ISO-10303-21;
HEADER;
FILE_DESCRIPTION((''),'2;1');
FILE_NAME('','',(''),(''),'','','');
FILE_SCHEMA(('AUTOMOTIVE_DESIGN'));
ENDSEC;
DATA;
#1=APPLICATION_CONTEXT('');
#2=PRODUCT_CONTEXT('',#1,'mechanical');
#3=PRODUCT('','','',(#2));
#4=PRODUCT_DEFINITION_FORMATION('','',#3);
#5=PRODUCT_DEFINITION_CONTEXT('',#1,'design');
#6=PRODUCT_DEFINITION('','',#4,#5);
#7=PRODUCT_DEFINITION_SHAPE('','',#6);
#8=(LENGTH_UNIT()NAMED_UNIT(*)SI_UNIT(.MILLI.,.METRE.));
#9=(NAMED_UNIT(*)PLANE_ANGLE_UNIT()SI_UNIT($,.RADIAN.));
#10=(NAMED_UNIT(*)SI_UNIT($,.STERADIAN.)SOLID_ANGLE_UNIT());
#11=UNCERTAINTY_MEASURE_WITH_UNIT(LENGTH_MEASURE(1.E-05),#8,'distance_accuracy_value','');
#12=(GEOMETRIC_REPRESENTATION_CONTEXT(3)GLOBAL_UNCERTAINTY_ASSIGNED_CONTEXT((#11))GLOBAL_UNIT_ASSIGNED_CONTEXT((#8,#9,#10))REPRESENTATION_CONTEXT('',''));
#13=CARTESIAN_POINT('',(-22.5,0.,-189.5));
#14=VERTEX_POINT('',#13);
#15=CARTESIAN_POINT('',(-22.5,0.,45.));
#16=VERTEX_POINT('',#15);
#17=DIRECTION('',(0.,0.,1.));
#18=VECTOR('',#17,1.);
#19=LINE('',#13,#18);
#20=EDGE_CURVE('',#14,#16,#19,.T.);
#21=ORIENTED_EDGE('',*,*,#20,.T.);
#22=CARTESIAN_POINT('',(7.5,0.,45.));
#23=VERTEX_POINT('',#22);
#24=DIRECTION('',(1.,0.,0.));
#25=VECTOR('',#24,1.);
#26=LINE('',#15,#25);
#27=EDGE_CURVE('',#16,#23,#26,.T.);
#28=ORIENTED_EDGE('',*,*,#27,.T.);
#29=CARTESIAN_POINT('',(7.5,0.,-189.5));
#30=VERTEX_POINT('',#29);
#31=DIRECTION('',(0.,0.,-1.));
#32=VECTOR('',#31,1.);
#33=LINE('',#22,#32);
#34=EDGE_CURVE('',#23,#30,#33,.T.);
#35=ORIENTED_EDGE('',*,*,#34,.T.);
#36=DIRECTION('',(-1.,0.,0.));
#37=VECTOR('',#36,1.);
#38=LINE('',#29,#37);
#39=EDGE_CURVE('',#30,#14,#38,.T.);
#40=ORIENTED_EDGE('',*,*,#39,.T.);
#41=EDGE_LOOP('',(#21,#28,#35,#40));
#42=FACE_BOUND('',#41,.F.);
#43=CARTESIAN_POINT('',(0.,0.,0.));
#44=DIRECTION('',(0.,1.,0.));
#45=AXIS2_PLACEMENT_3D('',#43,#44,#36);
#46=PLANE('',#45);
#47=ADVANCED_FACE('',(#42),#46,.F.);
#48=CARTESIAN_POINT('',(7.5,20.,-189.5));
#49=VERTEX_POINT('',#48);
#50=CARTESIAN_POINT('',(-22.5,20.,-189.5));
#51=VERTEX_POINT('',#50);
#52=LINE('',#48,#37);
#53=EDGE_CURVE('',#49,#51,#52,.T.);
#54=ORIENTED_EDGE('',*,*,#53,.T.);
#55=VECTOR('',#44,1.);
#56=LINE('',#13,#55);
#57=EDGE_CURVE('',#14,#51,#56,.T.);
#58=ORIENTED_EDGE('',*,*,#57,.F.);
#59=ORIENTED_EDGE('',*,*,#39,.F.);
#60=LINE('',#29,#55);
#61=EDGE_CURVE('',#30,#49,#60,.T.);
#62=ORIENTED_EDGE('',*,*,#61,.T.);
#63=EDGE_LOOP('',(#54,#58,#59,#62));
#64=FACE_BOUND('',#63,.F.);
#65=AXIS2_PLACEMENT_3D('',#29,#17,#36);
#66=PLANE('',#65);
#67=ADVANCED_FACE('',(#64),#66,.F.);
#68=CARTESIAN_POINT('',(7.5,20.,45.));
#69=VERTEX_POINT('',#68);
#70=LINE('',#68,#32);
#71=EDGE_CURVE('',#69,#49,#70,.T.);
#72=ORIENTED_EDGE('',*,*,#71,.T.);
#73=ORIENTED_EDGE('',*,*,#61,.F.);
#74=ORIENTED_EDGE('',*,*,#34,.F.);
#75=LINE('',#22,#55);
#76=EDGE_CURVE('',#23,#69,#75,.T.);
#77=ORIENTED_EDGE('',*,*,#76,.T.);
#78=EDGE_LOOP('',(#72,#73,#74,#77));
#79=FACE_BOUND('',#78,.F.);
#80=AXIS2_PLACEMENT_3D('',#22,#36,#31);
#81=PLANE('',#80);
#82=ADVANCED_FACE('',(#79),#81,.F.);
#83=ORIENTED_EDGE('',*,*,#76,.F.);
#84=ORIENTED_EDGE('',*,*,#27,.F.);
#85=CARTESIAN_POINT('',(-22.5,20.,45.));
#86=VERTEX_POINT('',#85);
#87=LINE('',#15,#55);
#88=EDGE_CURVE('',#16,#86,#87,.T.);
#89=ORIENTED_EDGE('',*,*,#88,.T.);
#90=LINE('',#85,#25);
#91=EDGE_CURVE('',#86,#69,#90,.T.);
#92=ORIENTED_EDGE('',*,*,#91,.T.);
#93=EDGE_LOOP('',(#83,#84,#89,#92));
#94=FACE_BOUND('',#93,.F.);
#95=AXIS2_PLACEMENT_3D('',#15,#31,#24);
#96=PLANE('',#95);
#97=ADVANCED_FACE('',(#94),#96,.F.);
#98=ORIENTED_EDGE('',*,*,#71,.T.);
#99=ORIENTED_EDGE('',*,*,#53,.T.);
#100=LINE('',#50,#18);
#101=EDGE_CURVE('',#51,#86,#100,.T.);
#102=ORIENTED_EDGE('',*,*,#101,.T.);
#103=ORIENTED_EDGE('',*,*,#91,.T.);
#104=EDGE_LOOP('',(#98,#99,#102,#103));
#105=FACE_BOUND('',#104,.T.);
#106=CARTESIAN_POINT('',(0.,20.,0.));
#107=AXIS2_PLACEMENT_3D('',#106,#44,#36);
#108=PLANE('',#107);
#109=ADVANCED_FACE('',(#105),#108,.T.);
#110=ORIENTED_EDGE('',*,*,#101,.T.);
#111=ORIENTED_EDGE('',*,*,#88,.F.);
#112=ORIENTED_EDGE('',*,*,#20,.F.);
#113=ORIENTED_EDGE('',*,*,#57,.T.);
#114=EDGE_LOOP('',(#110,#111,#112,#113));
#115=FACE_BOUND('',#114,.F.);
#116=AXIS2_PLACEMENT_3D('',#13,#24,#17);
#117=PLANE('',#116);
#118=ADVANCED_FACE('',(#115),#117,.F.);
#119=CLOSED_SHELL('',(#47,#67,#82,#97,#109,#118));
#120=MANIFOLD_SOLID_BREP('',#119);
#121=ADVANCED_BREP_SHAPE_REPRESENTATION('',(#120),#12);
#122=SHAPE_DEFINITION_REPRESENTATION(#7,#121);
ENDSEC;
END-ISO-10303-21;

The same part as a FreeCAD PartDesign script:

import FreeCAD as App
import Part
import Sketcher
from FreeCAD import Vector
Q = App.Units.Quantity

doc = App.newDocument("Part")
body = doc.addObject("PartDesign::Body", "Body")

sketch1 = body.newObject("Sketcher::SketchObject", "Sketch")
sketch1.AttachmentSupport = (doc.getObject("XZ_Plane"), [""])
sketch1.MapMode = "FlatFace"
sketch1.addGeometry([
    Part.LineSegment(Vector(-22.5, -189.5, 0), Vector(-22.5, 45, 0)),
    Part.LineSegment(Vector(-22.5, 45, 0), Vector(7.5, 45, 0)),
    Part.LineSegment(Vector(7.5, 45, 0), Vector(7.5, -189.5, 0)),
    Part.LineSegment(Vector(7.5, -189.5, 0), Vector(-22.5, -189.5, 0)),
], False)
sketch1.addConstraint([
    Sketcher.Constraint("Coincident", 0, 2, 1, 1),
    Sketcher.Constraint("Coincident", 1, 2, 2, 1),
    Sketcher.Constraint("Coincident", 2, 2, 3, 1),
    Sketcher.Constraint("Coincident", 3, 2, 0, 1),
    Sketcher.Constraint("Vertical", 0),
    Sketcher.Constraint("Horizontal", 1),
    Sketcher.Constraint("Vertical", 2),
    Sketcher.Constraint("Horizontal", 3),
    Sketcher.Constraint("DistanceX", 1, 1, 1, 2, Q("30 mm")),
    Sketcher.Constraint("DistanceY", 0, 1, 0, 2, Q("234.5 mm")),
    Sketcher.Constraint("DistanceY", -1, 1, 0, 2, Q("45 mm")),
    Sketcher.Constraint("DistanceX", 0, 2, -1, 1, Q("22.5 mm")),
])
pad1 = body.newObject("PartDesign::Pad", "Pad")
pad1.Profile = sketch1
pad1.Length = 20
pad1.Reversed = True

doc.recompute()
